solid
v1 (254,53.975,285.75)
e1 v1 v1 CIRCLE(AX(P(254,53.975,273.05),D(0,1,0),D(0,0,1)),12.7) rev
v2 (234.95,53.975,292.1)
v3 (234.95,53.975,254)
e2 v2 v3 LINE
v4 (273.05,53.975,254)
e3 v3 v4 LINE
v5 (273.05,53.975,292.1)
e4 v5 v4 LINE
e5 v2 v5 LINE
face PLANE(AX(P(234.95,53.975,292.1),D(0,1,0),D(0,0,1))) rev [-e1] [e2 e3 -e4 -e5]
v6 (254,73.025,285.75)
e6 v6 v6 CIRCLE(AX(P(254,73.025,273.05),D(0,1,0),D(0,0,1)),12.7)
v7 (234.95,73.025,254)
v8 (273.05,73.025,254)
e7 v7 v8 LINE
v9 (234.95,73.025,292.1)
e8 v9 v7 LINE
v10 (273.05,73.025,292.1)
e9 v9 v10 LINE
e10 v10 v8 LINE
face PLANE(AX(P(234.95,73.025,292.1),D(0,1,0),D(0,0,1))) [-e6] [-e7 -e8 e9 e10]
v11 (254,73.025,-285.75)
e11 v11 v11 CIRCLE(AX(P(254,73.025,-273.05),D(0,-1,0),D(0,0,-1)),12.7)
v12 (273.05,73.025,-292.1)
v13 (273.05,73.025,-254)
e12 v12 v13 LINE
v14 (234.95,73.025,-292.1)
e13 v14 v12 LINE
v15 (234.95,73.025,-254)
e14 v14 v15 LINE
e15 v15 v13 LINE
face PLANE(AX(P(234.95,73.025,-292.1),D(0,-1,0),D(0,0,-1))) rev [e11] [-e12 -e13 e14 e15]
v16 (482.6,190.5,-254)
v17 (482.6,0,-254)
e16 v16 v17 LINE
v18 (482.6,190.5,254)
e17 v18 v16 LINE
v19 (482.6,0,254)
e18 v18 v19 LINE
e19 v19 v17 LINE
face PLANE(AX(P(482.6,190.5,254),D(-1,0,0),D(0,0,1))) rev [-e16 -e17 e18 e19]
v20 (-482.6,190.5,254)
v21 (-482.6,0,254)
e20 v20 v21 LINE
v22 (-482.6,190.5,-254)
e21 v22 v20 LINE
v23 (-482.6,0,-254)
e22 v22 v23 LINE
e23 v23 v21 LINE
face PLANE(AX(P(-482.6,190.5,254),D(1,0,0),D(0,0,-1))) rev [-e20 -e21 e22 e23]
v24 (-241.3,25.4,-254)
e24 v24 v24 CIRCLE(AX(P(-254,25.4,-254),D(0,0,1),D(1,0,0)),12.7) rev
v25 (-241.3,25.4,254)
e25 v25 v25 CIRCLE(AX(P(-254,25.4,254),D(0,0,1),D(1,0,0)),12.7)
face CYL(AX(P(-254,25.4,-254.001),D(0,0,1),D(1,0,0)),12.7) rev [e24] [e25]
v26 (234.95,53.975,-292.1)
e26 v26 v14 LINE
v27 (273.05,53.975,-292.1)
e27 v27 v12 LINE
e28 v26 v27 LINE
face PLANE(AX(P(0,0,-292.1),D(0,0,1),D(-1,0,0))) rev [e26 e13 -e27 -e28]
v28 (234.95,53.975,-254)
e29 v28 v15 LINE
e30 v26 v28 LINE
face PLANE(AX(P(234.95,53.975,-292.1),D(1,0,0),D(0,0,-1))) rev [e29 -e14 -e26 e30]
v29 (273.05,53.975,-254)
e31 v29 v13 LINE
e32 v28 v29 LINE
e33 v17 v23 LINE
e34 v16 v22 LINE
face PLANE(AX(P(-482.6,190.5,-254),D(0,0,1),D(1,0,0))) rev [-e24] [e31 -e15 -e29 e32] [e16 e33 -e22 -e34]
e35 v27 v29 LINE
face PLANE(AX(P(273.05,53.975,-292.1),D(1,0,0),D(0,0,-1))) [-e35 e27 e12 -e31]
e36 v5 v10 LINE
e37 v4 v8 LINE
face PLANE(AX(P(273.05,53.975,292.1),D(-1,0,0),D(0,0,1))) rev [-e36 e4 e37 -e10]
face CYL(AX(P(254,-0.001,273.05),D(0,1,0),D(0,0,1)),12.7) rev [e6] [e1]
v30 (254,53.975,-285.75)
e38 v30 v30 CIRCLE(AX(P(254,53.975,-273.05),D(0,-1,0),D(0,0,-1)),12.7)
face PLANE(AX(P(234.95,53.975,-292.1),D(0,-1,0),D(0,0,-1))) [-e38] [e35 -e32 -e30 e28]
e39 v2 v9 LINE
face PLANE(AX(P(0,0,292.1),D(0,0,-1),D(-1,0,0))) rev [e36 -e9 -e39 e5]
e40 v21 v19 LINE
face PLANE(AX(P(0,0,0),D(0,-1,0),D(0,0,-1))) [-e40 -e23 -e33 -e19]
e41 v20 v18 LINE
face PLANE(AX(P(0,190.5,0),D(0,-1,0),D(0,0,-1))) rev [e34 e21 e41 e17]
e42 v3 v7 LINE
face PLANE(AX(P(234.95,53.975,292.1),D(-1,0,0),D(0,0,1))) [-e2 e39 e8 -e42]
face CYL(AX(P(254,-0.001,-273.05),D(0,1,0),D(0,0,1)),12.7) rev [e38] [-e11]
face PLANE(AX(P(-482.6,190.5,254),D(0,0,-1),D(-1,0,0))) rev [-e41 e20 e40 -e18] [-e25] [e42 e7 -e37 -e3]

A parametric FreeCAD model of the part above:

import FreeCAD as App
import Part
import Sketcher
Q = App.Units.Quantity


def add_polygon(sketch, points):
    """Adds a closed chain of lines whose ends are joined by coincident constraints."""
    first, n = sketch.GeometryCount, len(points)
    for a, b in zip(points, points[1:] + points[:1]):
        sketch.addGeometry(Part.LineSegment(App.Vector(*a, 0), App.Vector(*b, 0)), False)
    for i in range(n):
        sketch.addConstraint(Sketcher.Constraint("Coincident", first + i, 2, first + (i + 1) % n, 1))

doc = App.newDocument("Part")
body = doc.addObject("PartDesign::Body", "Body")

# Sketch on XZ plane
sketch1 = doc.addObject("Sketcher::SketchObject", "Sketch")
body.addObject(sketch1)
sketch1.AttachmentSupport = (doc.XZ_Plane, [""])
sketch1.MapMode = "FlatFace"
add_polygon(sketch1, [(-483, -254), (-483, 254), (483, 254), (483, -254)])  # lines 0-3
sketch1.addConstraint(Sketcher.Constraint("Vertical", 0))
sketch1.addConstraint(Sketcher.Constraint("Horizontal", 1))
sketch1.addConstraint(Sketcher.Constraint("Vertical", 2))
sketch1.addConstraint(Sketcher.Constraint("Horizontal", 3))
sketch1.addConstraint(Sketcher.Constraint("Symmetric", 0, 2, 2, 2, -1, 1))
sketch1.addConstraint(Sketcher.Constraint("DistanceX", 1, 1, 1, 2, Q("38 in")))
sketch1.addConstraint(Sketcher.Constraint("DistanceY", 0, 1, 0, 2, Q("20 in")))
pad1 = doc.addObject("PartDesign::Pad", "Pad")
body.addObject(pad1)
pad1.Profile = sketch1
pad1.Length = Q("7.5 in")
pad1.Reversed = True

# Sketch on XY plane
sketch2 = doc.addObject("Sketcher::SketchObject", "Sketch001")
body.addObject(sketch2)
sketch2.AttachmentSupport = (doc.XY_Plane, [""])
sketch2.MapMode = "FlatFace"
sketch2.AttachmentOffset = App.Placement(App.Vector(0, 0, 10 * 25.4), App.Rotation())
add_polygon(sketch2, [(235, 73), (235, 54), (273, 54), (273, 73)])  # lines 0-3
sketch2.addConstraint(Sketcher.Constraint("Vertical", 0))
sketch2.addConstraint(Sketcher.Constraint("Horizontal", 1))
sketch2.addConstraint(Sketcher.Constraint("Vertical", 2))
sketch2.addConstraint(Sketcher.Constraint("Horizontal", 3))
sketch2.addConstraint(Sketcher.Constraint("DistanceX", 1, 1, 1, 2, Q("1.5 in")))
sketch2.addConstraint(Sketcher.Constraint("DistanceY", 0, 2, 0, 1, Q("0.75 in")))
sketch2.addConstraint(Sketcher.Constraint("DistanceX", -1, 1, 0, 2, Q("9.25 in")))
sketch2.addConstraint(Sketcher.Constraint("DistanceY", -1, 1, 0, 2, Q("2.125 in")))
pad2 = doc.addObject("PartDesign::Pad", "Pad001")
body.addObject(pad2)
pad2.Profile = sketch2
pad2.Length = Q("1.5 in")

# Sketch on XZ plane
sketch3 = doc.addObject("Sketcher::SketchObject", "Sketch002")
body.addObject(sketch3)
sketch3.AttachmentSupport = (doc.XZ_Plane, [""])
sketch3.MapMode = "FlatFace"
sketch3.AttachmentOffset = App.Placement(App.Vector(0, 0, -2.875 * 25.4), App.Rotation())
sketch3.addGeometry(Part.Circle(App.Vector(254, 273, 0), App.Vector(0, 0, 1), 13), False)
sketch3.addConstraint(Sketcher.Constraint("Diameter", 0, Q("1 in")))
sketch3.addConstraint(Sketcher.Constraint("DistanceX", -1, 1, 0, 3, Q("10 in")))
sketch3.addConstraint(Sketcher.Constraint("DistanceY", -1, 1, 0, 3, Q("10.75 in")))
pocket1 = doc.addObject("PartDesign::Pocket", "Pocket")
body.addObject(pocket1)
pocket1.Profile = sketch3
pocket1.Length = Q("0.75 in")
pocket1.Reversed = True

# Sketch on XY plane
sketch4 = doc.addObject("Sketcher::SketchObject", "Sketch003")
body.addObject(sketch4)
sketch4.AttachmentSupport = (doc.XY_Plane, [""])
sketch4.MapMode = "FlatFace"
sketch4.AttachmentOffset = App.Placement(App.Vector(0, 0, 10 * 25.4), App.Rotation())
sketch4.addGeometry(Part.Circle(App.Vector(-254, 25, 0), App.Vector(0, 0, 1), 13), False)
sketch4.addConstraint(Sketcher.Constraint("Diameter", 0, Q("1 in")))
sketch4.addConstraint(Sketcher.Constraint("DistanceX", 0, 3, -1, 1, Q("10 in")))
sketch4.addConstraint(Sketcher.Constraint("DistanceY", -1, 1, 0, 3, Q("1 in")))
pocket2 = doc.addObject("PartDesign::Pocket", "Pocket001")
body.addObject(pocket2)
pocket2.Profile = sketch4
pocket2.Type = "UpToFirst"
doc.recompute()

mirrored = doc.addObject("PartDesign::Mirrored", "Mirrored")
body.addObject(mirrored)
mirrored.Originals = [pad2, pocket1]
mirrored.MirrorPlane = (doc.XY_Plane, [""])
body.Tip = mirrored

doc.recompute()
